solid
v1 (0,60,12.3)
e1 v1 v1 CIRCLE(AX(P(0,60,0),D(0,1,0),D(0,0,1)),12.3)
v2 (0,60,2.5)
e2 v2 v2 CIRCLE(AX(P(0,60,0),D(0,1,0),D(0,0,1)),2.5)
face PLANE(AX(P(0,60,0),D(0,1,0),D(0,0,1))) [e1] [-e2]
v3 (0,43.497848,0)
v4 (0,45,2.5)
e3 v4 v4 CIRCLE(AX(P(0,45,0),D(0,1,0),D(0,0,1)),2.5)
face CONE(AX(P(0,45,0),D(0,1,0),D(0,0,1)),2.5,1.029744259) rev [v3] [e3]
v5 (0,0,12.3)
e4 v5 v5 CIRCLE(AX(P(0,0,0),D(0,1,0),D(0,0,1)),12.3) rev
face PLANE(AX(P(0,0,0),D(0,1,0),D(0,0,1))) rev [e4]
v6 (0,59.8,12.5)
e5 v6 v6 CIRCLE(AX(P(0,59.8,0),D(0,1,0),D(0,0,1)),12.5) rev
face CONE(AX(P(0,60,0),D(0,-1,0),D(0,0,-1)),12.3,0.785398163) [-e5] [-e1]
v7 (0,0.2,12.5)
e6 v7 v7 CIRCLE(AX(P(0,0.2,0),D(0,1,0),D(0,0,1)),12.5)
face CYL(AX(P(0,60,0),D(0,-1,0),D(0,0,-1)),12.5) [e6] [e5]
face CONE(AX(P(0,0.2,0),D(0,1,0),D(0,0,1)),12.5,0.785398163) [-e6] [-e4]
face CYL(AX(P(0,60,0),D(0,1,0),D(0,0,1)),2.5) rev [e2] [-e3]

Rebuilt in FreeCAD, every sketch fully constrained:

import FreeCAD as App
import Part
import Sketcher
Q = App.Units.Quantity


def edges_at(feature, points):
    """Names of the edges that pass closest to the given points."""
    edges = feature.Shape.Edges
    near = lambda p: min(range(len(edges)), key=lambda i: edges[i].distToShape(Part.Vertex(*p))[0])
    return sorted({f"Edge{near(p) + 1}" for p in points})

doc = App.newDocument("Part")
body = doc.addObject("PartDesign::Body", "Body")

# Sketch on XZ plane
sketch1 = body.newObject("Sketcher::SketchObject", "Sketch")
sketch1.AttachmentSupport = (doc.getObject("XZ_Plane"), [""])
sketch1.MapMode = "FlatFace"
sketch1.addGeometry(Part.Circle(App.Vector(0, 0, 0), App.Vector(0, 0, 1), 12.5), False)
sketch1.addConstraint([
    Sketcher.Constraint("Coincident", 0, 3, -1, 1),
    Sketcher.Constraint("Diameter", 0, Q("25 mm")),
])
pad1 = body.newObject("PartDesign::Pad", "Pad")
pad1.Profile = sketch1
pad1.Length = 60
pad1.Reversed = True

# Sketch on XZ plane
sketch2 = body.newObject("Sketcher::SketchObject", "Sketch001")
sketch2.AttachmentSupport = (doc.getObject("XZ_Plane"), [""])
sketch2.MapMode = "FlatFace"
sketch2.AttachmentOffset = App.Placement(App.Vector(0, 0, -60), App.Rotation())
sketch2.addGeometry(Part.Circle(App.Vector(0, 0, 0), App.Vector(0, 0, 1), 2.5), False)
sketch2.addConstraint([
    Sketcher.Constraint("Coincident", 0, 3, -1, 1),
    Sketcher.Constraint("Diameter", 0, Q("5 mm")),
])
doc.recompute()
hole = body.newObject("PartDesign::Hole", "Hole")
hole.Profile = sketch2
hole.ThreadType = "None"
hole.Diameter = 5
hole.DepthType = "Dimension"
hole.Depth = 15
hole.DrillPoint = "Angled"
hole.DrillPointAngle = 118
hole.Reversed = True
doc.recompute()

chamfer = body.newObject("PartDesign::Chamfer", "Chamfer")
chamfer.Base = (hole, edges_at(hole, [(0, 0, -12.5), (0, 60, -12.5)]))
chamfer.Size = 0.2

doc.recompute()
